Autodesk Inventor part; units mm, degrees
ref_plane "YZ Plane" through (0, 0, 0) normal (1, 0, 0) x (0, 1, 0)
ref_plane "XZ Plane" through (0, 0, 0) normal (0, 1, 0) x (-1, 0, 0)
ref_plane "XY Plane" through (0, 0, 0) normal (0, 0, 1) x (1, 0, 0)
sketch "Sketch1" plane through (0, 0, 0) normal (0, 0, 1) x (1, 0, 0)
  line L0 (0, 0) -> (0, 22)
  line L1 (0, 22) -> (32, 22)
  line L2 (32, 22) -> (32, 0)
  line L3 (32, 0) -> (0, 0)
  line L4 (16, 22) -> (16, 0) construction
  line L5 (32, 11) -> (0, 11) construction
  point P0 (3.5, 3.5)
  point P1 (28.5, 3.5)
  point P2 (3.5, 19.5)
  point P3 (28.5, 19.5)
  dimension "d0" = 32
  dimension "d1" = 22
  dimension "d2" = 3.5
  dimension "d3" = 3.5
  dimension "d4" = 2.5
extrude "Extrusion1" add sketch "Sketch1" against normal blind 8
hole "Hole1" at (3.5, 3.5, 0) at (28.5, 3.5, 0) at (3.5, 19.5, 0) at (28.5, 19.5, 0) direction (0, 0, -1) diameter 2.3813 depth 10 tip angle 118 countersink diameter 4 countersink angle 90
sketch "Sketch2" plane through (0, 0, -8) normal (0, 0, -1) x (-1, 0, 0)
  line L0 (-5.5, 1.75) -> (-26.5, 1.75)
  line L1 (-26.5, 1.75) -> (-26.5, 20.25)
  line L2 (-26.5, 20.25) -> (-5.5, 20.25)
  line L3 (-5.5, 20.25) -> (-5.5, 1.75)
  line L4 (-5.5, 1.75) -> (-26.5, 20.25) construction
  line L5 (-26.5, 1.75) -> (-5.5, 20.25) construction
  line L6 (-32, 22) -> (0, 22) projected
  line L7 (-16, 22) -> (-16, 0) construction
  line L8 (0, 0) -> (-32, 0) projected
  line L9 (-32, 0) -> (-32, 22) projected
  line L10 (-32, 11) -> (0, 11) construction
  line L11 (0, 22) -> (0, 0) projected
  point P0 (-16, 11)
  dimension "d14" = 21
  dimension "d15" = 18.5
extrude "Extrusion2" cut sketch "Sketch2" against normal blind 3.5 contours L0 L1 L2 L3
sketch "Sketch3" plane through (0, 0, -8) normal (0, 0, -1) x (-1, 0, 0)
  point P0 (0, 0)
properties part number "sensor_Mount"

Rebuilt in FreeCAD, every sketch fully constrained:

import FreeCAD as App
import Part
import Sketcher

V = App.Vector
Q = App.Units.Quantity

doc = App.newDocument("Part")
params = doc.addObject("Spreadsheet::Sheet", "Params")
for row, (alias, value) in enumerate([
    ("sketch1_width", "32 mm"),
    ("sketch1_height", "22 mm"),
    ("pad1_length", "8 mm"),
    ("hole_diameter", "2.3813 mm"),
    ("hole_depth", "10 mm"),
    ("hole_csink_diameter", "4 mm"),
    ("sketch3_width", "21 mm"),
    ("sketch3_height", "18.5 mm"),
    ("pocket1_length", "3.5 mm"),
], start=1):
    params.set(f"A{row}", alias)
    params.set(f"B{row}", "=" + value)
    params.setAlias(f"B{row}", alias)

body = doc.addObject("PartDesign::Body", "Body")

# Sketch on XY plane
sketch1 = body.newObject("Sketcher::SketchObject", "Sketch")
sketch1.AttachmentSupport = (doc.getObject("XY_Plane"), [""])
sketch1.MapMode = "FlatFace"
sketch1.addGeometry(Part.LineSegment(V(0, 22, 0), V(0, 0, 0)), False)
sketch1.addGeometry(Part.LineSegment(V(0, 0, 0), V(32, 0, 0)), False)
sketch1.addGeometry(Part.LineSegment(V(32, 0, 0), V(32, 22, 0)), False)
sketch1.addGeometry(Part.LineSegment(V(32, 22, 0), V(0, 22, 0)), False)
sketch1.addConstraint(Sketcher.Constraint("Coincident", 0, 2, 1, 1))
sketch1.addConstraint(Sketcher.Constraint("Coincident", 1, 2, 2, 1))
sketch1.addConstraint(Sketcher.Constraint("Coincident", 2, 2, 3, 1))
sketch1.addConstraint(Sketcher.Constraint("Coincident", 3, 2, 0, 1))
sketch1.addConstraint(Sketcher.Constraint("Vertical", 0))
sketch1.addConstraint(Sketcher.Constraint("Horizontal", 1))
sketch1.addConstraint(Sketcher.Constraint("Vertical", 2))
sketch1.addConstraint(Sketcher.Constraint("Horizontal", 3))
sketch1.addConstraint(Sketcher.Constraint("Coincident", 0, 2, -1, 1))
sketch1.addConstraint(Sketcher.Constraint("DistanceX", 1, 1, 1, 2, Q("32 mm")))
sketch1.addConstraint(Sketcher.Constraint("DistanceY", 0, 2, 0, 1, Q("22 mm")))
sketch1.setExpression("Constraints[9]", "Params.sketch1_width")
sketch1.setExpression("Constraints[10]", "Params.sketch1_height")
pad1 = body.newObject("PartDesign::Pad", "Pad")
pad1.Profile = sketch1
pad1.setExpression("Length", "Params.pad1_length")
pad1.Reversed = True

# Sketch on XY plane
sketch2 = body.newObject("Sketcher::SketchObject", "Sketch001")
sketch2.AttachmentSupport = (doc.getObject("XY_Plane"), [""])
sketch2.MapMode = "FlatFace"
sketch2.addGeometry(Part.Circle(V(3.5, 3.5, 0), V(0, 0, 1), 1.2), False)
sketch2.addGeometry(Part.Circle(V(28.5, 3.5, 0), V(0, 0, 1), 1.2), False)
sketch2.addGeometry(Part.Circle(V(3.5, 19.5, 0), V(0, 0, 1), 1.2), False)
sketch2.addGeometry(Part.Circle(V(28.5, 19.5, 0), V(0, 0, 1), 1.2), False)
sketch2.addConstraint(Sketcher.Constraint("Equal", 0, 1))
sketch2.addConstraint(Sketcher.Constraint("Equal", 1, 2))
sketch2.addConstraint(Sketcher.Constraint("Equal", 2, 3))
sketch2.addConstraint(Sketcher.Constraint("Horizontal", 0, 3, 1, 3))
sketch2.addConstraint(Sketcher.Constraint("Horizontal", 2, 3, 3, 3))
sketch2.addConstraint(Sketcher.Constraint("Vertical", 0, 3, 2, 3))
sketch2.addConstraint(Sketcher.Constraint("Vertical", 1, 3, 3, 3))
sketch2.addConstraint(Sketcher.Constraint("DistanceX", 0, 3, 1, 3, Q("25 mm")))
sketch2.addConstraint(Sketcher.Constraint("DistanceY", 0, 3, 2, 3, Q("16 mm")))
sketch2.addConstraint(Sketcher.Constraint("Diameter", 0, Q("2.3813 mm")))
sketch2.addConstraint(Sketcher.Constraint("DistanceX", -1, 1, 0, 3, Q("3.5 mm")))
sketch2.addConstraint(Sketcher.Constraint("DistanceY", -1, 1, 0, 3, Q("3.5 mm")))
doc.recompute()
hole = body.newObject("PartDesign::Hole", "Hole")
hole.Profile = sketch2
hole.ThreadType = "None"
hole.setExpression("Diameter", "Params.hole_diameter")
hole.DepthType = "Dimension"
hole.setExpression("Depth", "Params.hole_depth")
hole.DrillPoint = "Angled"
hole.DrillPointAngle = 118
hole.HoleCutType = "Countersink"
hole.setExpression("HoleCutDiameter", "Params.hole_csink_diameter")
hole.HoleCutCountersinkAngle = 90

# Sketch on XY plane
sketch3 = body.newObject("Sketcher::SketchObject", "Sketch002")
sketch3.AttachmentSupport = (doc.getObject("XY_Plane"), [""])
sketch3.MapMode = "FlatFace"
sketch3.AttachmentOffset = App.Placement(V(0, 0, -8), App.Rotation())
sketch3.addGeometry(Part.LineSegment(V(26, 2, 0), V(6, 2, 0)), False)
sketch3.addGeometry(Part.LineSegment(V(6, 2, 0), V(6, 20, 0)), False)
sketch3.addGeometry(Part.LineSegment(V(6, 20, 0), V(26, 20, 0)), False)
sketch3.addGeometry(Part.LineSegment(V(26, 20, 0), V(26, 2, 0)), False)
sketch3.addConstraint(Sketcher.Constraint("Coincident", 0, 2, 1, 1))
sketch3.addConstraint(Sketcher.Constraint("Coincident", 1, 2, 2, 1))
sketch3.addConstraint(Sketcher.Constraint("Coincident", 2, 2, 3, 1))
sketch3.addConstraint(Sketcher.Constraint("Coincident", 3, 2, 0, 1))
sketch3.addConstraint(Sketcher.Constraint("Horizontal", 0))
sketch3.addConstraint(Sketcher.Constraint("Vertical", 1))
sketch3.addConstraint(Sketcher.Constraint("Horizontal", 2))
sketch3.addConstraint(Sketcher.Constraint("Vertical", 3))
sketch3.addConstraint(Sketcher.Constraint("DistanceX", 0, 2, 0, 1, Q("21 mm")))
sketch3.addConstraint(Sketcher.Constraint("DistanceY", 1, 1, 1, 2, Q("18.5 mm")))
sketch3.addConstraint(Sketcher.Constraint("DistanceX", -1, 1, 0, 2, Q("5.5 mm")))
sketch3.addConstraint(Sketcher.Constraint("DistanceY", -1, 1, 0, 2, Q("1.75 mm")))
sketch3.setExpression("Constraints[8]", "Params.sketch3_width")
sketch3.setExpression("Constraints[9]", "Params.sketch3_height")
pocket1 = body.newObject("PartDesign::Pocket", "Pocket")
pocket1.Profile = sketch3
pocket1.setExpression("Length", "Params.pocket1_length")
pocket1.Reversed = True

doc.recompute()
